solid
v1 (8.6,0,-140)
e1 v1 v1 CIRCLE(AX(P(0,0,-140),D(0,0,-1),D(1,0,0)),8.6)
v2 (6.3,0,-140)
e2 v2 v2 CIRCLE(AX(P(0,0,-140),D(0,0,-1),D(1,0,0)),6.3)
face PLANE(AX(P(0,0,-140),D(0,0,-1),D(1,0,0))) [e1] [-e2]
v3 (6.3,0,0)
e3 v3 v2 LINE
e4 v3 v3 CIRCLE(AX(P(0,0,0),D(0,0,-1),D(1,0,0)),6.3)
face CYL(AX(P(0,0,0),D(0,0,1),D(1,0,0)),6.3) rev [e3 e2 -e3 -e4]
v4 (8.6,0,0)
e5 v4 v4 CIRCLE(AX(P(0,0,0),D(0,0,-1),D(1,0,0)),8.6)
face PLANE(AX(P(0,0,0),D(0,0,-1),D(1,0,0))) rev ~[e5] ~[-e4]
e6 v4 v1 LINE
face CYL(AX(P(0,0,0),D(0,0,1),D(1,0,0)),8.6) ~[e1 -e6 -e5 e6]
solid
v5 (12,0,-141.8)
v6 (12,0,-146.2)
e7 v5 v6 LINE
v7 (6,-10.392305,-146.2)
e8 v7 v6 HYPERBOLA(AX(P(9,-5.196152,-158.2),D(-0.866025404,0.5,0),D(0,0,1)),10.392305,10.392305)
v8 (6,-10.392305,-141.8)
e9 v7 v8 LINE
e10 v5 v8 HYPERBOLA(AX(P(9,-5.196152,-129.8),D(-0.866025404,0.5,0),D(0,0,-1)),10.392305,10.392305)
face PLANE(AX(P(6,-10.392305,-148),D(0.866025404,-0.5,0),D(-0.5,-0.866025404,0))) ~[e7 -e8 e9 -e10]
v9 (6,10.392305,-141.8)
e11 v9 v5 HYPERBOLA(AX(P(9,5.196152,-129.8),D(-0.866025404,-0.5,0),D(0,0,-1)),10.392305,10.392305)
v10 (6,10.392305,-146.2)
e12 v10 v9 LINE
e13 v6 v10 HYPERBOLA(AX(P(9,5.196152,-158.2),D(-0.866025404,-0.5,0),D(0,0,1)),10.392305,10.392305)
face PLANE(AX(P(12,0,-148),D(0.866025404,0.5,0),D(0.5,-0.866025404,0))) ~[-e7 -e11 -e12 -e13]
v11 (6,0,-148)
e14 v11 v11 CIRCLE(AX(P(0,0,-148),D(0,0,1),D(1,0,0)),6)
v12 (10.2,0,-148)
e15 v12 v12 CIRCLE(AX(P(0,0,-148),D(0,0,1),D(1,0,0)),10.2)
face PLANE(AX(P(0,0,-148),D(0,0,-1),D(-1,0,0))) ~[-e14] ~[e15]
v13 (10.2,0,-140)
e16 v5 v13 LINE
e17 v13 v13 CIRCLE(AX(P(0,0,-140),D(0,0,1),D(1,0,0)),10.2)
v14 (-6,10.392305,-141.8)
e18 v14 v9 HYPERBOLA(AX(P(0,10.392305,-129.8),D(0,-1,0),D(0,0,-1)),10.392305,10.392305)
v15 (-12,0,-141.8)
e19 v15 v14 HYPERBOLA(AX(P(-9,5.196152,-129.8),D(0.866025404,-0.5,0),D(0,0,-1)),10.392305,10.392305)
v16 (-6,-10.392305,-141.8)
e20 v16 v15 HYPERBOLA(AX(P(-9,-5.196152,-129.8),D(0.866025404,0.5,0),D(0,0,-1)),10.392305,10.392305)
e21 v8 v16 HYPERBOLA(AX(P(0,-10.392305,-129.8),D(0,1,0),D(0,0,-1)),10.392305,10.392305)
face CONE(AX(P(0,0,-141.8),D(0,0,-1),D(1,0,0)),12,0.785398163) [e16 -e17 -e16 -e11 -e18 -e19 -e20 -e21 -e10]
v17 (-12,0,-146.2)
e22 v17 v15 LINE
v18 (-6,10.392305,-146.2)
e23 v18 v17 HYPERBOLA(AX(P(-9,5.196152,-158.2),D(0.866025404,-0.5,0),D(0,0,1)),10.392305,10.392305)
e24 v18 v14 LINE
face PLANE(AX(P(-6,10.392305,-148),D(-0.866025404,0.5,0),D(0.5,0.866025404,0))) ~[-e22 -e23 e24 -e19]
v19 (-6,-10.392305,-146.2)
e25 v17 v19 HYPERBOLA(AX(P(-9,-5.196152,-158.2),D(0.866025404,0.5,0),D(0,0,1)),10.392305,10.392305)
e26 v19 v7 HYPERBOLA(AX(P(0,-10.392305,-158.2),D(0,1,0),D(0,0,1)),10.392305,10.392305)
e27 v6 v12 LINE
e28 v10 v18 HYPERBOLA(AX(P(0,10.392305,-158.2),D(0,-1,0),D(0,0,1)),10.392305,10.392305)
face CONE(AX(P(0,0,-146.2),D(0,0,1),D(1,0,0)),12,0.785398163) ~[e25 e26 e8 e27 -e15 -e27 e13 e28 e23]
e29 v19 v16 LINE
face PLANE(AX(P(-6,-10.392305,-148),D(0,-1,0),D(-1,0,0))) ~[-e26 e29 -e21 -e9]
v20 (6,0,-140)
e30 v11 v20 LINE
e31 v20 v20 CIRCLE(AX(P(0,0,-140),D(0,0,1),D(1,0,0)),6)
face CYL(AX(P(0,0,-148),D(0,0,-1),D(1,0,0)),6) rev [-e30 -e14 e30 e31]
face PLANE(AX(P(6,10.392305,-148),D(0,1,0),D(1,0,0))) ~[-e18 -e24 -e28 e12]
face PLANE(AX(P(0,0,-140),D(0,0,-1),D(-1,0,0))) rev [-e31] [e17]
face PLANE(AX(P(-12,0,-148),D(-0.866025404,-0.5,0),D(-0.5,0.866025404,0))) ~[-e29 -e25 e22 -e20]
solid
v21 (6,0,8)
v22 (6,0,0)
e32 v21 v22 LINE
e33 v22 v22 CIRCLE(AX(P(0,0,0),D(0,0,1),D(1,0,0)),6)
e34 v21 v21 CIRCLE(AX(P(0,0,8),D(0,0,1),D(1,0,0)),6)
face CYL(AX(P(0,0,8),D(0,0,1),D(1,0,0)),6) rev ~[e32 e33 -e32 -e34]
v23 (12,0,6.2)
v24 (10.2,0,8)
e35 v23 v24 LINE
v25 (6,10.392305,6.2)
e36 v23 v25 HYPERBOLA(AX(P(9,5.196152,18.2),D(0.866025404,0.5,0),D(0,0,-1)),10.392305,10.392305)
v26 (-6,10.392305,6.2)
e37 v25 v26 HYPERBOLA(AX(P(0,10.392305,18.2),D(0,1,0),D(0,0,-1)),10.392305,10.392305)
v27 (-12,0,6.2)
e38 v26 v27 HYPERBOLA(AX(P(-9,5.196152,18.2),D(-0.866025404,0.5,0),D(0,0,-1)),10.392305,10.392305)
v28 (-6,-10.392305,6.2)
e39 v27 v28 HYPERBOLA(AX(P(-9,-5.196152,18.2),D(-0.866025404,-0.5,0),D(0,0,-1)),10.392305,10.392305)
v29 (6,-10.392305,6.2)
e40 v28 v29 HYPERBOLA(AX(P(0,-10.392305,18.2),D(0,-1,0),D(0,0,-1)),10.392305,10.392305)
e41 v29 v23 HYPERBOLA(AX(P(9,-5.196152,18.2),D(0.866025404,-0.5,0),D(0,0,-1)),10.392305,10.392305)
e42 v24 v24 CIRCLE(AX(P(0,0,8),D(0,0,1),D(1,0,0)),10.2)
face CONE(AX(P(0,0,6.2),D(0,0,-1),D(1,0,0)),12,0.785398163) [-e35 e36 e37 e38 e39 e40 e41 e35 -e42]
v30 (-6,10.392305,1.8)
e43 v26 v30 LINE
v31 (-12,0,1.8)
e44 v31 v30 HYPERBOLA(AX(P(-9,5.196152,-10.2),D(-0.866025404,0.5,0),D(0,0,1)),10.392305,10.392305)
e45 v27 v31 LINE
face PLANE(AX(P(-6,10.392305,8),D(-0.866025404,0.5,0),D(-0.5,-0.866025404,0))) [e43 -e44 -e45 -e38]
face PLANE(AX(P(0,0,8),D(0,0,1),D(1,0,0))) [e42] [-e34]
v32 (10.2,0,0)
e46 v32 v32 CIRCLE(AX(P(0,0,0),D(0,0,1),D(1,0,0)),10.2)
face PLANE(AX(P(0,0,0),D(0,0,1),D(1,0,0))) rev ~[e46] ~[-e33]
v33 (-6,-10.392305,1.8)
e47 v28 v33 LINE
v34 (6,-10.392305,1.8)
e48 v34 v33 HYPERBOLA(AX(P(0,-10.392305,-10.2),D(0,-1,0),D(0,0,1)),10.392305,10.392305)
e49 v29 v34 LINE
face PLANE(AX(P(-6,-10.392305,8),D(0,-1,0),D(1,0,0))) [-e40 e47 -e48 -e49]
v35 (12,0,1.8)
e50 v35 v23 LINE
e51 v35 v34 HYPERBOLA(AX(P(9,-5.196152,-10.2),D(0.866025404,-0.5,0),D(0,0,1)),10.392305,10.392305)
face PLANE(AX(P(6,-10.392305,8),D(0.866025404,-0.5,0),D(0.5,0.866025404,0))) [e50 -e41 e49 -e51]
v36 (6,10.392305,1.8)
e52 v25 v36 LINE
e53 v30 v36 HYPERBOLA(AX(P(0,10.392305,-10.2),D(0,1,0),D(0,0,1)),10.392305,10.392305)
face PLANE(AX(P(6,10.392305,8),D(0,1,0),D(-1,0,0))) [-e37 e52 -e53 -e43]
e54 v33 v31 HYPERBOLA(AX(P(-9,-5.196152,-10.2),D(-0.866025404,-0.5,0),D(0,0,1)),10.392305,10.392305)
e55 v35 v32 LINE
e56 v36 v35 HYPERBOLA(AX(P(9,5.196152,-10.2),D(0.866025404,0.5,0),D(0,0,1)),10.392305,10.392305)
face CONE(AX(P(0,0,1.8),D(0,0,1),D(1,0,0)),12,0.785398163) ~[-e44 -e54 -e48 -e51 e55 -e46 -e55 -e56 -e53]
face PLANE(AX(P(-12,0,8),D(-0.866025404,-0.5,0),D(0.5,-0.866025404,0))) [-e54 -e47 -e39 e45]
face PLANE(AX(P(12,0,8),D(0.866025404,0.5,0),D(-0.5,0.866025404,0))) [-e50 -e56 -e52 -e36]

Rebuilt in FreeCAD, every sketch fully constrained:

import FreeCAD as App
import Part
import Sketcher
from FreeCAD import Vector
Q = App.Units.Quantity


def edges_at(feature, points):
    """Names of the edges that pass closest to the given points."""
    edges = feature.Shape.Edges
    near = lambda p: min(range(len(edges)), key=lambda i: edges[i].distToShape(Part.Vertex(*p))[0])
    return sorted({f"Edge{near(p) + 1}" for p in points})


def add_polygon(sketch, points):
    """Adds a closed chain of lines whose ends are joined by coincident constraints."""
    first, n = sketch.GeometryCount, len(points)
    for a, b in zip(points, points[1:] + points[:1]):
        sketch.addGeometry(Part.LineSegment(App.Vector(*a, 0), App.Vector(*b, 0)), False)
    for i in range(n):
        sketch.addConstraint(Sketcher.Constraint("Coincident", first + i, 2, first + (i + 1) % n, 1))

doc = App.newDocument("Part")
body = doc.addObject("PartDesign::Body", "Body")

# Sketch on XY plane
sketch1 = doc.addObject("Sketcher::SketchObject", "Sketch")
body.addObject(sketch1)
sketch1.AttachmentSupport = (doc.XY_Plane, [""])
sketch1.MapMode = "FlatFace"
sketch1.addGeometry([
    Part.Circle(Vector(0, 0, 0), Vector(0, 0, 1), 9),
    Part.Circle(Vector(0, 0, 0), Vector(0, 0, 1), 6),
], False)
sketch1.addConstraint([
    Sketcher.Constraint("Coincident", 0, 3, -1, 1),
    Sketcher.Constraint("Coincident", 1, 3, -1, 1),
    Sketcher.Constraint("Diameter", 0, Q("17.2 mm")),
    Sketcher.Constraint("Diameter", 1, Q("12.6 mm")),
])
pad1 = doc.addObject("PartDesign::Pad", "Pad")
body.addObject(pad1)
pad1.Profile = sketch1
pad1.Length = 140
pad1.Reversed = True
body2 = doc.addObject("PartDesign::Body", "Body001")

# Sketch on XY plane
sketch2 = doc.addObject("Sketcher::SketchObject", "Sketch001")
body2.addObject(sketch2)
sketch2.AttachmentSupport = (doc.getObject("XY_Plane001"), [""])
sketch2.MapMode = "FlatFace"
sketch2.addGeometry(Part.Circle(Vector(0, 0, 0), Vector(0, 0, 1), 12), False)
sketch2.addConstraint([
    Sketcher.Constraint("Coincident", 0, 3, -1, 1),
    Sketcher.Constraint("Diameter", 0, Q("24 mm")),
])
pad2 = doc.addObject("PartDesign::Pad", "Pad001")
body2.addObject(pad2)
pad2.Profile = sketch2
pad2.Length = 8
doc.recompute()

chamfer = doc.addObject("PartDesign::Chamfer", "Chamfer")
body2.addObject(chamfer)
chamfer.Base = (pad2, edges_at(pad2, [(-12, 0, 0), (-12, 0, 8)]))
chamfer.Size = 1.8

# Sketch on XY plane
sketch3 = doc.addObject("Sketcher::SketchObject", "Sketch002")
body2.addObject(sketch3)
sketch3.AttachmentSupport = (doc.getObject("XY_Plane001"), [""])
sketch3.MapMode = "FlatFace"
sketch3.AttachmentOffset = App.Placement(Vector(0, 0, 8), App.Rotation())
add_polygon(sketch3, [(14, 0), (7, 12), (-7, 12), (-14, 0), (-7, -12), (7, -12)])  # lines 0-5
add_polygon(sketch3, [(12, 0), (6, -10), (-6, -10), (-12, 0), (-6, 10), (6, 10)])  # lines 6-11
sketch3.addGeometry(Part.Circle(Vector(0, 0, 0), Vector(0, 0, 1), 6), False)  # 12
sketch3.addConstraint([
    Sketcher.Constraint("Horizontal", 1),
    Sketcher.Constraint("Horizontal", 4),
    Sketcher.Constraint("Horizontal", 7),
    Sketcher.Constraint("Horizontal", 10),
    Sketcher.Constraint("Coincident", 12, 3, -1, 1),
    Sketcher.Constraint("Symmetric", 0, 2, 3, 2, -1, 1),
    Sketcher.Constraint("Symmetric", 2, 2, 5, 2, -1, 1),
    Sketcher.Constraint("Symmetric", 6, 2, 9, 2, -1, 1),
    Sketcher.Constraint("Symmetric", 8, 2, 11, 2, -1, 1),
    Sketcher.Constraint("PointOnObject", 2, 2, -1),
    Sketcher.Constraint("PointOnObject", 8, 2, -1),
    Sketcher.Constraint("Parallel", 2, 5),
    Sketcher.Constraint("Parallel", 5, 6),
    Sketcher.Constraint("Parallel", 3, 8),
    Sketcher.Constraint("Parallel", 8, 11),
    Sketcher.Constraint("Vertical", 1, 2, 3, 2),
    Sketcher.Constraint("Diameter", 12, Q("12 mm")),
    Sketcher.Constraint("DistanceX", 7, 2, 7, 1, Q("12 mm")),
    Sketcher.Constraint("Angle", 0, Q("120 deg")),
    Sketcher.Constraint("Distance", 6, Q("12 mm")),
    Sketcher.Constraint("DistanceY", 4, 2, 6, 2, Q("2 mm")),
    Sketcher.Constraint("DistanceX", 1, 2, 1, 1, Q("14.309401 mm")),
])
pocket1 = doc.addObject("PartDesign::Pocket", "Pocket")
body2.addObject(pocket1)
pocket1.Profile = sketch3
pocket1.Length = 16
body3 = doc.addObject("PartDesign::Body", "Body002")
doc.recompute()

mirroring = doc.addObject("Part::Mirroring", "Mirroring")
mirroring.Source = body2
mirroring.Base = Vector(0, 0, -70)
mirroring.Normal = Vector(0, 0, 1)
body3.BaseFeature = mirroring
doc.recompute()
mirroring.Visibility = False

doc.recompute()
